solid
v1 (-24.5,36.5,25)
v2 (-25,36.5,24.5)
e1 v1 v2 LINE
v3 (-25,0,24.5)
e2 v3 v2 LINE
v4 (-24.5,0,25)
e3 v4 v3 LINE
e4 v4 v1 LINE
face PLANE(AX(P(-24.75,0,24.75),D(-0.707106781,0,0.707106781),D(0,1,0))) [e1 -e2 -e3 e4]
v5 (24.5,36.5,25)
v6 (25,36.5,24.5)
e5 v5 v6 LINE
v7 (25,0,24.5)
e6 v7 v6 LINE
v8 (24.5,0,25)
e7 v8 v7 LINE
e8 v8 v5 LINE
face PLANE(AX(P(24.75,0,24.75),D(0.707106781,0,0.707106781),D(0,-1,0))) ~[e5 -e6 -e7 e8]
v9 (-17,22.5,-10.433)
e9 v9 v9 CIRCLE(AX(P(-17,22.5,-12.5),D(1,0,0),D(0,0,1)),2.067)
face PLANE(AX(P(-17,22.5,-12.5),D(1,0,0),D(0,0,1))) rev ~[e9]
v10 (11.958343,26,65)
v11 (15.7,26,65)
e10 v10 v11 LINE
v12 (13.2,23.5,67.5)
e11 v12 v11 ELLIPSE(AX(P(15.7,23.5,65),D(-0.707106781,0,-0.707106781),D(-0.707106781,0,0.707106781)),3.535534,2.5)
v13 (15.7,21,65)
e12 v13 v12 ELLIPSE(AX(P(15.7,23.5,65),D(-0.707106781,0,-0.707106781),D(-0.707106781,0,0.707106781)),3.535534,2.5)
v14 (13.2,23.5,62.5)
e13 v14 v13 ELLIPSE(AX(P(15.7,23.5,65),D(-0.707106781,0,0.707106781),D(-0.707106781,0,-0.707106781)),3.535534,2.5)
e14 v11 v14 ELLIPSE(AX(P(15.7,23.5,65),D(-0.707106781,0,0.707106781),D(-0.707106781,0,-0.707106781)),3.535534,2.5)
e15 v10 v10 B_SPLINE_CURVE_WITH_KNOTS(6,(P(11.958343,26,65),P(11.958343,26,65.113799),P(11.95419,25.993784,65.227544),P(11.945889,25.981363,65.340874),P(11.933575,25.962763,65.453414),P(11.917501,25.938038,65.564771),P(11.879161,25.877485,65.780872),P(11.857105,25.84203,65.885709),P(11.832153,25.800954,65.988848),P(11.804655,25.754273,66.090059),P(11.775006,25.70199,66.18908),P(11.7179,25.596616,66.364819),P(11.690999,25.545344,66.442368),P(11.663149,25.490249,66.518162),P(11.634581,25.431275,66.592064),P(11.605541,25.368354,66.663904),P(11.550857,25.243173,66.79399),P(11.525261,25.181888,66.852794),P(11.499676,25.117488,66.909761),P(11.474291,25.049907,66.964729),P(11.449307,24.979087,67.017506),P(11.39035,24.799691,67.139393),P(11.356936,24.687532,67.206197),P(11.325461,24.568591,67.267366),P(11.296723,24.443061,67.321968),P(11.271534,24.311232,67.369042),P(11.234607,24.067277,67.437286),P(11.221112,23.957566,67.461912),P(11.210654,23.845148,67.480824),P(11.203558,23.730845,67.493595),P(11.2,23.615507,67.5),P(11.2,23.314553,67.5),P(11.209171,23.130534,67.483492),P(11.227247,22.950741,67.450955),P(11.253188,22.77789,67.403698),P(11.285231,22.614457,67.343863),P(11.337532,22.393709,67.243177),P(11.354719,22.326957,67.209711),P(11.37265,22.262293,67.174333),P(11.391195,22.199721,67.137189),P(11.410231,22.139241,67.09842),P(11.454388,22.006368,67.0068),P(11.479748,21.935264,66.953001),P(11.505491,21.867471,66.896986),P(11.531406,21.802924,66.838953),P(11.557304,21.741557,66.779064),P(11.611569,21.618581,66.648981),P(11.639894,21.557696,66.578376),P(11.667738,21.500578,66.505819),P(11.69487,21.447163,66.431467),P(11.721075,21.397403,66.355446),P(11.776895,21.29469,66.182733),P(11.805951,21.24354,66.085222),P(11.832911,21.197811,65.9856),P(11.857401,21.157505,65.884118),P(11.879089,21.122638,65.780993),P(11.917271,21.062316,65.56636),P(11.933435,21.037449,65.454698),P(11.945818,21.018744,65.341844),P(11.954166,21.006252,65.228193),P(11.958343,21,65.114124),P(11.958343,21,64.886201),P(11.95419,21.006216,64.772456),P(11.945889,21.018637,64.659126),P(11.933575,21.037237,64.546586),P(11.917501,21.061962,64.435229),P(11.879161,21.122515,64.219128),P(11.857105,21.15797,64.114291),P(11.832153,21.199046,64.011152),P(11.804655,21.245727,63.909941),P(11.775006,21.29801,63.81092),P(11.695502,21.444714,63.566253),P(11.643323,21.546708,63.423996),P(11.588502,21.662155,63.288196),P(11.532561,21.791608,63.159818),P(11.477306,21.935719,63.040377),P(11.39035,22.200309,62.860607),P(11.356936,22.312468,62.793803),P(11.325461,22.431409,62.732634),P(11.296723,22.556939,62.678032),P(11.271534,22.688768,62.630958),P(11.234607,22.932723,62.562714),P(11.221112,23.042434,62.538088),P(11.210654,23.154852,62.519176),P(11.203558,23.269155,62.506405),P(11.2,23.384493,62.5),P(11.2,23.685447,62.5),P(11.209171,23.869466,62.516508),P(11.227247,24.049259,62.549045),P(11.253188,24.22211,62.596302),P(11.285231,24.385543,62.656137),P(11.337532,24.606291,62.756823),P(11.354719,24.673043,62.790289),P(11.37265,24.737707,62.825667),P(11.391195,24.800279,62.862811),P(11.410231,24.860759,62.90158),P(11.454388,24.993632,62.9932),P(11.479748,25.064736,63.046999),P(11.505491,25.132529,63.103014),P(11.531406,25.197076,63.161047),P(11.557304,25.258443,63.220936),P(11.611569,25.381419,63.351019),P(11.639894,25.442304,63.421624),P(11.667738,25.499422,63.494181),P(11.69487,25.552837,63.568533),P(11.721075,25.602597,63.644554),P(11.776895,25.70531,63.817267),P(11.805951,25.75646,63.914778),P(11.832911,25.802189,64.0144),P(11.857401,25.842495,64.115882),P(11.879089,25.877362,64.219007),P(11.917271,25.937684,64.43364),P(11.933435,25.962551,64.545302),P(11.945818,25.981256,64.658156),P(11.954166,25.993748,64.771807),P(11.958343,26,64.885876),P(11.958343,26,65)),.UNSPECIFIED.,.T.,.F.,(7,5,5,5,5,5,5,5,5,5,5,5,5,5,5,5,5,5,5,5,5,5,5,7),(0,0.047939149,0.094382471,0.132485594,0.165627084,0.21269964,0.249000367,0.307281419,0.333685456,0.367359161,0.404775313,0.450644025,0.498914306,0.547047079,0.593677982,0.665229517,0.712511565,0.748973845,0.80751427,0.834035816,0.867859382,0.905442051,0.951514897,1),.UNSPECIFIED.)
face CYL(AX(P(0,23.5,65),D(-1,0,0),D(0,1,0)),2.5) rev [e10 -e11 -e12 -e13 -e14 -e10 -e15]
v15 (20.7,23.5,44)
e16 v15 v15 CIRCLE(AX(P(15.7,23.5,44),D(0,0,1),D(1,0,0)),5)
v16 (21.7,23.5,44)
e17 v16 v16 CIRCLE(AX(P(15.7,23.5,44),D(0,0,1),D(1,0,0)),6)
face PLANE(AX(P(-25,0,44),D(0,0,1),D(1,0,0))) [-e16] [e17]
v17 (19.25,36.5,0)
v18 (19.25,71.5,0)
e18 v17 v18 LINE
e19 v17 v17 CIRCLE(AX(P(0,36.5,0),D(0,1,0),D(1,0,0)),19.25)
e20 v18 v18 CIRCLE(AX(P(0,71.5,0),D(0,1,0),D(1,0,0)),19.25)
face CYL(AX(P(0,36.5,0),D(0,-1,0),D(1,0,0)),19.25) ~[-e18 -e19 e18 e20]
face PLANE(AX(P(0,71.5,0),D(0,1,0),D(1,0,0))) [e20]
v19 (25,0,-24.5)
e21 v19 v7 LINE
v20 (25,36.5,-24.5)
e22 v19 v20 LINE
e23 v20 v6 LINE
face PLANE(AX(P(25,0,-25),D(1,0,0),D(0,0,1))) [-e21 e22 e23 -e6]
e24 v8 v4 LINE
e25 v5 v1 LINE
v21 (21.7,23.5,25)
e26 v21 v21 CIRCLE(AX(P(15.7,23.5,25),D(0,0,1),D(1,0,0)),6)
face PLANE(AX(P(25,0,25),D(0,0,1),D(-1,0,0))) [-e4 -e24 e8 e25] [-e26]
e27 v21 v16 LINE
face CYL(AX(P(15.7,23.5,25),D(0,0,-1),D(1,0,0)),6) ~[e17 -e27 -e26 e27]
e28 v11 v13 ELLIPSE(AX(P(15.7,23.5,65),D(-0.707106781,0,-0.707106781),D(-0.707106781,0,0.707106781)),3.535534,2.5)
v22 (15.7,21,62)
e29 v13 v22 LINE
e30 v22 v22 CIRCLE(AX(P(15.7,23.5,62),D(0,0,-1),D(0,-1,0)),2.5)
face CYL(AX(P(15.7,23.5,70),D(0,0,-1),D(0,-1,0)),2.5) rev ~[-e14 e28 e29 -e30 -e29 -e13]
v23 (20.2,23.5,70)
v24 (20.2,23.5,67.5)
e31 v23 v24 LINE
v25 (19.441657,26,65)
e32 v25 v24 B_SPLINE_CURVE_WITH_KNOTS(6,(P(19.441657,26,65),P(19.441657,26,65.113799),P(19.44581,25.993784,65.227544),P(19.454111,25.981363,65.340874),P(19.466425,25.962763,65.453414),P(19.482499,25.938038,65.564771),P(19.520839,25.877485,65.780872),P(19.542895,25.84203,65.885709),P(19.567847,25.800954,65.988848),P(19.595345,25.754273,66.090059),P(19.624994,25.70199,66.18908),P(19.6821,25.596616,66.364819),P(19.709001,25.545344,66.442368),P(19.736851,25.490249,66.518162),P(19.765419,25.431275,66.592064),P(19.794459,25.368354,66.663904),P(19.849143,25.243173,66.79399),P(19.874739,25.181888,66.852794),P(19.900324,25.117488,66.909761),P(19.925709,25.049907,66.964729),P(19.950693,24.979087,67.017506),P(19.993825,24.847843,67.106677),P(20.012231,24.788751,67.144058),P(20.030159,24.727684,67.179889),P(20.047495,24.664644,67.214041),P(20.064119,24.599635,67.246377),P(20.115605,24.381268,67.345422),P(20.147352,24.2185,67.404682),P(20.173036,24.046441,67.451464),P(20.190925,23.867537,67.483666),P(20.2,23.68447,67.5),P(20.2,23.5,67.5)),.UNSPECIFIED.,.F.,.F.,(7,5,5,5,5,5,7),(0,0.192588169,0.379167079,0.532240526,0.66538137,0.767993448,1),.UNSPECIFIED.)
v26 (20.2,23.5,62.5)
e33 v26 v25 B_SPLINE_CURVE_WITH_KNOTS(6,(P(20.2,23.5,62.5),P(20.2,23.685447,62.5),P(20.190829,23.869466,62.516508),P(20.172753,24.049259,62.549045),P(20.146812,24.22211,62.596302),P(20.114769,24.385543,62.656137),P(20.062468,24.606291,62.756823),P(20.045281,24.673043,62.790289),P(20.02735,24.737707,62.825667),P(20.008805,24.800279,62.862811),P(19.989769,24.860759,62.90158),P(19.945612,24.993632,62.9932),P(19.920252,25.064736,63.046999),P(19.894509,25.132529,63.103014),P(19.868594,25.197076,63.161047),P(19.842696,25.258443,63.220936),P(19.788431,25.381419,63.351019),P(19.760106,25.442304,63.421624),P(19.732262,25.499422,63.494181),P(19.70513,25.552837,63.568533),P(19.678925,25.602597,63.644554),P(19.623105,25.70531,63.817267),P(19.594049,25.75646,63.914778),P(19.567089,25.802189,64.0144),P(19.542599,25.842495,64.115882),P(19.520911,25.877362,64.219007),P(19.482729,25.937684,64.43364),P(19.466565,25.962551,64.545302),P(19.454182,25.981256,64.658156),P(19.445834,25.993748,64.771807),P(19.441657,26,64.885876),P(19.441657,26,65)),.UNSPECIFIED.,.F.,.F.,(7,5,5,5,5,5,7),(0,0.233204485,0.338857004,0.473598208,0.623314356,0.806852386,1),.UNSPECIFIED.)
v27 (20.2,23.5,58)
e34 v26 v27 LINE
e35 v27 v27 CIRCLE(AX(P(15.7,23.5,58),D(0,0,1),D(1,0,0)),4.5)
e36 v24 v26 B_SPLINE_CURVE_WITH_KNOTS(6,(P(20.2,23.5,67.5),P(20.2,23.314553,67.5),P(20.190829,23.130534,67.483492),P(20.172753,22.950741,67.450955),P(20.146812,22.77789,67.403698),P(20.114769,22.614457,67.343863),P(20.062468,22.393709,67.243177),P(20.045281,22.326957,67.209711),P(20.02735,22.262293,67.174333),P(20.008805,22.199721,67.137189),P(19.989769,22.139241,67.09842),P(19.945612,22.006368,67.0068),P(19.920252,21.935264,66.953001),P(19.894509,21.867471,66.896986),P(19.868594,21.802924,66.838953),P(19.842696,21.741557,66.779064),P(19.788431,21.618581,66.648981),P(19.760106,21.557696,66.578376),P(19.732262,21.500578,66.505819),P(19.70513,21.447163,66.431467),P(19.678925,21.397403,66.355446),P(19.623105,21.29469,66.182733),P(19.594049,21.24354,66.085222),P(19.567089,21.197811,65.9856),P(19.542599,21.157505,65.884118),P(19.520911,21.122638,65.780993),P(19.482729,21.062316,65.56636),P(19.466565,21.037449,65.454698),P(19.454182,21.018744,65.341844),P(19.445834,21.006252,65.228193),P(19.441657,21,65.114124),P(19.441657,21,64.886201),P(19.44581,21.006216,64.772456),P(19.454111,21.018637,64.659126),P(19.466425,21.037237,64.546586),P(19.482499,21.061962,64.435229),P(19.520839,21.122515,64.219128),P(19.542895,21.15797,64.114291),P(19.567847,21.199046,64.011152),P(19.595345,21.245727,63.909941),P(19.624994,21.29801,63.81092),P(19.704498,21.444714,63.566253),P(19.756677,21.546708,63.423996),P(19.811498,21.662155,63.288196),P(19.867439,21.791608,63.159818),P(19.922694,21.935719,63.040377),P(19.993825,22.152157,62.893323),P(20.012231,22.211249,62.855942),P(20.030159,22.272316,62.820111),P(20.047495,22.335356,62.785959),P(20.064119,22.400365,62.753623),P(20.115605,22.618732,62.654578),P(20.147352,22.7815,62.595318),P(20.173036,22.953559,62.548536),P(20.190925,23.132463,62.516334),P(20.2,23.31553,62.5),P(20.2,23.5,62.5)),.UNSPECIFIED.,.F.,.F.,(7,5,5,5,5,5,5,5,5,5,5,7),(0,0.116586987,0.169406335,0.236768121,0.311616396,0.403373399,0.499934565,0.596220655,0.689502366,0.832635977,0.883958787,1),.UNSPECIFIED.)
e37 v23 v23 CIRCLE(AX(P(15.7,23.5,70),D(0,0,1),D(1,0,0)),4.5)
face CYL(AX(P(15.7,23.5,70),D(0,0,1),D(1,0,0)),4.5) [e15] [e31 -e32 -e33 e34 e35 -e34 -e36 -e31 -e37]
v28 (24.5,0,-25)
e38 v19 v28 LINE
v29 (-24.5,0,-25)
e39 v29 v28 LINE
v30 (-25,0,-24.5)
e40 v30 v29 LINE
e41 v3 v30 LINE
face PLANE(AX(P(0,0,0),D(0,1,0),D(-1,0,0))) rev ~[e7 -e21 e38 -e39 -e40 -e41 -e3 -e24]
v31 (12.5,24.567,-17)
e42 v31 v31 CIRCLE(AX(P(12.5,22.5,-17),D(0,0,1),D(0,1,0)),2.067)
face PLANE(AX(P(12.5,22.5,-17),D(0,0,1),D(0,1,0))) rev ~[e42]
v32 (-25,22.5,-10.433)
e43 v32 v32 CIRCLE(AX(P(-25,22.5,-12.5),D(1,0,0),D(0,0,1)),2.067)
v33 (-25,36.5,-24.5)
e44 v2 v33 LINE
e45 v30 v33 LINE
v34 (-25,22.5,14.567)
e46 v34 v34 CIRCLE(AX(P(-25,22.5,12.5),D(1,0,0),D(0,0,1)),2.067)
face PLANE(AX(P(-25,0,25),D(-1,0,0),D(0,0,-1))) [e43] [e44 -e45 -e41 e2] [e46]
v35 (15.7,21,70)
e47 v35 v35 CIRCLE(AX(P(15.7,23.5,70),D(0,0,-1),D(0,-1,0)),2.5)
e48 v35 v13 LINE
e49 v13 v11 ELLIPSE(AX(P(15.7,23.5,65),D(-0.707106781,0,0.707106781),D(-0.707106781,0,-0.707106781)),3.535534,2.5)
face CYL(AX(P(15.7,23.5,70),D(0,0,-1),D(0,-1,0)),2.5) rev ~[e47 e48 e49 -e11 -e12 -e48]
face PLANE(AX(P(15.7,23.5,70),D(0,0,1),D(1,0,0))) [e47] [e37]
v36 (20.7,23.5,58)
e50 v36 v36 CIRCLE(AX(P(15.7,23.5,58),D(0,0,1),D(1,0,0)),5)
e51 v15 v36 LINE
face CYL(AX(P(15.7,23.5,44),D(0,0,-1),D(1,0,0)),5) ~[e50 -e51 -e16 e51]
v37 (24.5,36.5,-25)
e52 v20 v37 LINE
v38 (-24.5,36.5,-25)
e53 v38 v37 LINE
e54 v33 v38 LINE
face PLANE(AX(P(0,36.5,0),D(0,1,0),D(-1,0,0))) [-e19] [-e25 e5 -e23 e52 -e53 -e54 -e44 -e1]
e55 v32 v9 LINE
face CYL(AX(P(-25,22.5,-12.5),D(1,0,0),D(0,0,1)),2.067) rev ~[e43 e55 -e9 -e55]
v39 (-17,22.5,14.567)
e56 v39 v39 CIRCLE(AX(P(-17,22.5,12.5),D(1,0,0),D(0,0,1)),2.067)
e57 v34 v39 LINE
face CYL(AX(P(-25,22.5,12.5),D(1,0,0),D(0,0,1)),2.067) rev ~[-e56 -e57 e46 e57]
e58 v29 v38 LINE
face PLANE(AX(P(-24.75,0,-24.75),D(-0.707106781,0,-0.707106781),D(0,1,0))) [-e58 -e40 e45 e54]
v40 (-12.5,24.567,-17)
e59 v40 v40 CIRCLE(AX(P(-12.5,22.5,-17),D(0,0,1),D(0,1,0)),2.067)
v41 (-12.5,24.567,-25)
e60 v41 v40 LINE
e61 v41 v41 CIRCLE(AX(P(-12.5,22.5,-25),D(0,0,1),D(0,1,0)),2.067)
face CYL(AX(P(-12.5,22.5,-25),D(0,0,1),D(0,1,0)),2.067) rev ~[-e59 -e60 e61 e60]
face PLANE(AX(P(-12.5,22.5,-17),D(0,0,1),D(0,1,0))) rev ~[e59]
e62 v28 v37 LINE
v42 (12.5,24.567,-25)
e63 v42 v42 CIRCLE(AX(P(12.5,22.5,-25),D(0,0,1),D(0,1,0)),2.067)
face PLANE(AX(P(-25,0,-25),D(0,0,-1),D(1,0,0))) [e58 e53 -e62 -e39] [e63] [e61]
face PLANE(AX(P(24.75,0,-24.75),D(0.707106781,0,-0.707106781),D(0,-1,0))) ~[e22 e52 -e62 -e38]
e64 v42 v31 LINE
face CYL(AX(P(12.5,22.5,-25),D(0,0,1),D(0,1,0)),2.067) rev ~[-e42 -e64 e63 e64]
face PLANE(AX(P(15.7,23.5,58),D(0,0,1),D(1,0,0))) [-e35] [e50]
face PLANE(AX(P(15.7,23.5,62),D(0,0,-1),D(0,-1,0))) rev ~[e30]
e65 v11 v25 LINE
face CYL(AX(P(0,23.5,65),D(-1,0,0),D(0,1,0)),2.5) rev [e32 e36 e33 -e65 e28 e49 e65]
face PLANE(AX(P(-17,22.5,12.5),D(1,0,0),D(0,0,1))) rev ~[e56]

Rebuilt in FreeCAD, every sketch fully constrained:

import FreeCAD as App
import Part
import Sketcher

V = App.Vector


def edges_at(feature, points):
    """Names of the edges that pass closest to the given points."""
    edges = feature.Shape.Edges
    near = lambda p: min(range(len(edges)), key=lambda i: edges[i].distToShape(Part.Vertex(*p))[0])
    return sorted({f"Edge{near(p) + 1}" for p in points})


def add_polygon(sketch, points):
    """Adds a closed chain of lines whose ends are joined by coincident constraints."""
    first, n = sketch.GeometryCount, len(points)
    for a, b in zip(points, points[1:] + points[:1]):
        sketch.addGeometry(Part.LineSegment(App.Vector(*a, 0), App.Vector(*b, 0)), False)
    for i in range(n):
        sketch.addConstraint(Sketcher.Constraint("Coincident", first + i, 2, first + (i + 1) % n, 1))

doc = App.newDocument("Part")
body = doc.addObject("PartDesign::Body", "Body")

sketch1 = body.newObject("Sketcher::SketchObject", "Sketch")
sketch1.AttachmentSupport = (doc.getObject("XZ_Plane"), [""])
sketch1.MapMode = "FlatFace"
add_polygon(sketch1, [(-25, 25), (25, 25), (25, -25), (-25, -25)])
sketch1.addConstraint([
    Sketcher.Constraint("Horizontal", 0),
    Sketcher.Constraint("Vertical", 1),
    Sketcher.Constraint("Horizontal", 2),
    Sketcher.Constraint("Vertical", 3),
    Sketcher.Constraint("Symmetric", 0, 2, 2, 2, -1, 1),
    Sketcher.Constraint("Equal", 2, 1),
    Sketcher.Constraint("DistanceX", 0, 1, 0, 2, 50.0),
])
pad1 = body.newObject("PartDesign::Pad", "Pad")
pad1.Profile = sketch1
pad1.Length = 36.5
pad1.Reversed = True

sketch2 = body.newObject("Sketcher::SketchObject", "Sketch001")
sketch2.AttachmentSupport = (doc.getObject("XY_Plane"), [""])
sketch2.MapMode = "FlatFace"
sketch2.AttachmentOffset = App.Placement(V(0, 0, 25), App.Rotation())
sketch2.addGeometry(Part.Circle(V(16, 24, 0), V(0, 0, 1), 6), False)
sketch2.addConstraint([
    Sketcher.Constraint("Diameter", 0, 12.0),
    Sketcher.Constraint("DistanceX", -1, 1, 0, 3, 15.7),
    Sketcher.Constraint("DistanceY", -1, 1, 0, 3, 23.5),
])
pad2 = body.newObject("PartDesign::Pad", "Pad001")
pad2.Profile = sketch2
pad2.Length = 19

sketch3 = body.newObject("Sketcher::SketchObject", "Sketch002")
sketch3.AttachmentSupport = (doc.getObject("XY_Plane"), [""])
sketch3.MapMode = "FlatFace"
sketch3.AttachmentOffset = App.Placement(V(0, 0, 44), App.Rotation())
sketch3.addGeometry(Part.Circle(V(16, 24, 0), V(0, 0, 1), 5), False)
sketch3.addConstraint([
    Sketcher.Constraint("Diameter", 0, 10.0),
    Sketcher.Constraint("DistanceX", -1, 1, 0, 3, 15.7),
    Sketcher.Constraint("DistanceY", -1, 1, 0, 3, 23.5),
])
pad3 = body.newObject("PartDesign::Pad", "Pad002")
pad3.Profile = sketch3
pad3.Length = 26

sketch4 = body.newObject("Sketcher::SketchObject", "Sketch003")
sketch4.AttachmentSupport = (doc.getObject("XZ_Plane"), [""])
sketch4.MapMode = "FlatFace"
sketch4.AttachmentOffset = App.Placement(V(0, 0, -36.5), App.Rotation())
sketch4.addGeometry(Part.Circle(V(0, 0, 0), V(0, 0, 1), 19), False)
sketch4.addConstraint([
    Sketcher.Constraint("Coincident", 0, 3, -1, 1),
    Sketcher.Constraint("Diameter", 0, 38.5),
])
pad4 = body.newObject("PartDesign::Pad", "Pad003")
pad4.Profile = sketch4
pad4.Length = 35
pad4.Reversed = True

sketch5 = body.newObject("Sketcher::SketchObject", "Sketch004")
sketch5.AttachmentSupport = (doc.getObject("XY_Plane"), [""])
sketch5.MapMode = "FlatFace"
sketch5.AttachmentOffset = App.Placement(V(0, 0, 70), App.Rotation())
sketch5.addGeometry([
    Part.Circle(V(15.7, 23.5, 0), V(0, 0, 1), 5),
    Part.Circle(V(15.7, 23.5, 0), V(0, 0, 1), 4.5),
], False)
sketch5.addConstraint([
    Sketcher.Constraint("Coincident", 1, 3, 0, 3),
    Sketcher.Constraint("Diameter", 1, 9.0),
    Sketcher.Constraint("Diameter", 0, 10.0),
    Sketcher.Constraint("DistanceX", -1, 1, 0, 3, 15.7),
    Sketcher.Constraint("DistanceY", -1, 1, 0, 3, 23.5),
])
pocket1 = body.newObject("PartDesign::Pocket", "Pocket")
pocket1.Profile = sketch5
pocket1.Length = 12

sketch6 = body.newObject("Sketcher::SketchObject", "Sketch005")
sketch6.AttachmentSupport = (doc.getObject("YZ_Plane"), [""])
sketch6.MapMode = "FlatFace"
sketch6.addGeometry(Part.Circle(V(23.5, 65, 0), V(0, 0, 1), 2.5), False)
sketch6.addConstraint([
    Sketcher.Constraint("Diameter", 0, 5.0),
    Sketcher.Constraint("DistanceY", -1, 1, 0, 3, 65.0),
    Sketcher.Constraint("DistanceX", -1, 1, 0, 3, 23.5),
])
pocket2 = body.newObject("PartDesign::Pocket", "Pocket001")
pocket2.Profile = sketch6
pocket2.Type = "ThroughAll"
pocket2.Reversed = True

sketch7 = body.newObject("Sketcher::SketchObject", "Sketch006")
sketch7.AttachmentSupport = (doc.getObject("XY_Plane"), [""])
sketch7.MapMode = "FlatFace"
sketch7.AttachmentOffset = App.Placement(V(0, 0, 70), App.Rotation())
sketch7.addGeometry(Part.Circle(V(15.7, 23.5, 0), V(0, 0, 1), 2.5), False)
sketch7.addConstraint([
    Sketcher.Constraint("Diameter", 0, 5.0),
    Sketcher.Constraint("DistanceX", -1, 1, 0, 3, 15.7),
    Sketcher.Constraint("DistanceY", -1, 1, 0, 3, 23.5),
])
doc.recompute()
hole = body.newObject("PartDesign::Hole", "Hole")
hole.Profile = sketch7
hole.ThreadType = "None"
hole.Diameter = 5
hole.DepthType = "Dimension"
hole.Depth = 8
hole.DrillPoint = "Flat"

sketch8 = body.newObject("Sketcher::SketchObject", "Sketch007")
sketch8.AttachmentSupport = (doc.getObject("XY_Plane"), [""])
sketch8.MapMode = "FlatFace"
sketch8.AttachmentOffset = App.Placement(V(0, 0, -25), App.Rotation())
sketch8.addGeometry([
    Part.Circle(V(12.5, 22.5, 0), V(0, 0, 1), 2.1),
    Part.Circle(V(-12.5, 22.5, 0), V(0, 0, 1), 2.1),
], False)
sketch8.addConstraint([
    Sketcher.Constraint("Equal", 0, 1),
    Sketcher.Constraint("Symmetric", 0, 3, 1, 3, -2),
    Sketcher.Constraint("Diameter", 0, 4.134),
    Sketcher.Constraint("DistanceX", 1, 3, 0, 3, 25.0),
    Sketcher.Constraint("DistanceY", -1, 1, 0, 3, 22.5),
])
doc.recompute()
hole2 = body.newObject("PartDesign::Hole", "Hole001")
hole2.Profile = sketch8
hole2.ThreadType = "None"
hole2.Diameter = 4.134
hole2.DepthType = "Dimension"
hole2.Depth = 8
hole2.DrillPoint = "Flat"
hole2.Reversed = True

sketch9 = body.newObject("Sketcher::SketchObject", "Sketch008")
sketch9.AttachmentSupport = (doc.getObject("YZ_Plane"), [""])
sketch9.MapMode = "FlatFace"
sketch9.AttachmentOffset = App.Placement(V(0, 0, -25), App.Rotation())
sketch9.addGeometry([
    Part.Circle(V(22.5, -12.5, 0), V(0, 0, 1), 2.1),
    Part.Circle(V(22.5, 12.5, 0), V(0, 0, 1), 2.1),
], False)
sketch9.addConstraint([
    Sketcher.Constraint("Equal", 0, 1),
    Sketcher.Constraint("Symmetric", 0, 3, 1, 3, -1),
    Sketcher.Constraint("Diameter", 0, 4.134),
    Sketcher.Constraint("DistanceY", 0, 3, 1, 3, 25.0),
    Sketcher.Constraint("DistanceX", -1, 1, 0, 3, 22.5),
])
doc.recompute()
hole3 = body.newObject("PartDesign::Hole", "Hole002")
hole3.Profile = sketch9
hole3.ThreadType = "None"
hole3.Diameter = 4.134
hole3.DepthType = "Dimension"
hole3.Depth = 8
hole3.DrillPoint = "Flat"
hole3.Reversed = True
doc.recompute()

chamfer = body.newObject("PartDesign::Chamfer", "Chamfer")
chamfer.Base = (hole3, edges_at(hole3, [
    (25, 18.25, 25),
    (-25, 18.25, 25),
    (25, 18.25, -25),
    (-25, 18.25, -25),
]))
chamfer.Size = 0.5

doc.recompute()
